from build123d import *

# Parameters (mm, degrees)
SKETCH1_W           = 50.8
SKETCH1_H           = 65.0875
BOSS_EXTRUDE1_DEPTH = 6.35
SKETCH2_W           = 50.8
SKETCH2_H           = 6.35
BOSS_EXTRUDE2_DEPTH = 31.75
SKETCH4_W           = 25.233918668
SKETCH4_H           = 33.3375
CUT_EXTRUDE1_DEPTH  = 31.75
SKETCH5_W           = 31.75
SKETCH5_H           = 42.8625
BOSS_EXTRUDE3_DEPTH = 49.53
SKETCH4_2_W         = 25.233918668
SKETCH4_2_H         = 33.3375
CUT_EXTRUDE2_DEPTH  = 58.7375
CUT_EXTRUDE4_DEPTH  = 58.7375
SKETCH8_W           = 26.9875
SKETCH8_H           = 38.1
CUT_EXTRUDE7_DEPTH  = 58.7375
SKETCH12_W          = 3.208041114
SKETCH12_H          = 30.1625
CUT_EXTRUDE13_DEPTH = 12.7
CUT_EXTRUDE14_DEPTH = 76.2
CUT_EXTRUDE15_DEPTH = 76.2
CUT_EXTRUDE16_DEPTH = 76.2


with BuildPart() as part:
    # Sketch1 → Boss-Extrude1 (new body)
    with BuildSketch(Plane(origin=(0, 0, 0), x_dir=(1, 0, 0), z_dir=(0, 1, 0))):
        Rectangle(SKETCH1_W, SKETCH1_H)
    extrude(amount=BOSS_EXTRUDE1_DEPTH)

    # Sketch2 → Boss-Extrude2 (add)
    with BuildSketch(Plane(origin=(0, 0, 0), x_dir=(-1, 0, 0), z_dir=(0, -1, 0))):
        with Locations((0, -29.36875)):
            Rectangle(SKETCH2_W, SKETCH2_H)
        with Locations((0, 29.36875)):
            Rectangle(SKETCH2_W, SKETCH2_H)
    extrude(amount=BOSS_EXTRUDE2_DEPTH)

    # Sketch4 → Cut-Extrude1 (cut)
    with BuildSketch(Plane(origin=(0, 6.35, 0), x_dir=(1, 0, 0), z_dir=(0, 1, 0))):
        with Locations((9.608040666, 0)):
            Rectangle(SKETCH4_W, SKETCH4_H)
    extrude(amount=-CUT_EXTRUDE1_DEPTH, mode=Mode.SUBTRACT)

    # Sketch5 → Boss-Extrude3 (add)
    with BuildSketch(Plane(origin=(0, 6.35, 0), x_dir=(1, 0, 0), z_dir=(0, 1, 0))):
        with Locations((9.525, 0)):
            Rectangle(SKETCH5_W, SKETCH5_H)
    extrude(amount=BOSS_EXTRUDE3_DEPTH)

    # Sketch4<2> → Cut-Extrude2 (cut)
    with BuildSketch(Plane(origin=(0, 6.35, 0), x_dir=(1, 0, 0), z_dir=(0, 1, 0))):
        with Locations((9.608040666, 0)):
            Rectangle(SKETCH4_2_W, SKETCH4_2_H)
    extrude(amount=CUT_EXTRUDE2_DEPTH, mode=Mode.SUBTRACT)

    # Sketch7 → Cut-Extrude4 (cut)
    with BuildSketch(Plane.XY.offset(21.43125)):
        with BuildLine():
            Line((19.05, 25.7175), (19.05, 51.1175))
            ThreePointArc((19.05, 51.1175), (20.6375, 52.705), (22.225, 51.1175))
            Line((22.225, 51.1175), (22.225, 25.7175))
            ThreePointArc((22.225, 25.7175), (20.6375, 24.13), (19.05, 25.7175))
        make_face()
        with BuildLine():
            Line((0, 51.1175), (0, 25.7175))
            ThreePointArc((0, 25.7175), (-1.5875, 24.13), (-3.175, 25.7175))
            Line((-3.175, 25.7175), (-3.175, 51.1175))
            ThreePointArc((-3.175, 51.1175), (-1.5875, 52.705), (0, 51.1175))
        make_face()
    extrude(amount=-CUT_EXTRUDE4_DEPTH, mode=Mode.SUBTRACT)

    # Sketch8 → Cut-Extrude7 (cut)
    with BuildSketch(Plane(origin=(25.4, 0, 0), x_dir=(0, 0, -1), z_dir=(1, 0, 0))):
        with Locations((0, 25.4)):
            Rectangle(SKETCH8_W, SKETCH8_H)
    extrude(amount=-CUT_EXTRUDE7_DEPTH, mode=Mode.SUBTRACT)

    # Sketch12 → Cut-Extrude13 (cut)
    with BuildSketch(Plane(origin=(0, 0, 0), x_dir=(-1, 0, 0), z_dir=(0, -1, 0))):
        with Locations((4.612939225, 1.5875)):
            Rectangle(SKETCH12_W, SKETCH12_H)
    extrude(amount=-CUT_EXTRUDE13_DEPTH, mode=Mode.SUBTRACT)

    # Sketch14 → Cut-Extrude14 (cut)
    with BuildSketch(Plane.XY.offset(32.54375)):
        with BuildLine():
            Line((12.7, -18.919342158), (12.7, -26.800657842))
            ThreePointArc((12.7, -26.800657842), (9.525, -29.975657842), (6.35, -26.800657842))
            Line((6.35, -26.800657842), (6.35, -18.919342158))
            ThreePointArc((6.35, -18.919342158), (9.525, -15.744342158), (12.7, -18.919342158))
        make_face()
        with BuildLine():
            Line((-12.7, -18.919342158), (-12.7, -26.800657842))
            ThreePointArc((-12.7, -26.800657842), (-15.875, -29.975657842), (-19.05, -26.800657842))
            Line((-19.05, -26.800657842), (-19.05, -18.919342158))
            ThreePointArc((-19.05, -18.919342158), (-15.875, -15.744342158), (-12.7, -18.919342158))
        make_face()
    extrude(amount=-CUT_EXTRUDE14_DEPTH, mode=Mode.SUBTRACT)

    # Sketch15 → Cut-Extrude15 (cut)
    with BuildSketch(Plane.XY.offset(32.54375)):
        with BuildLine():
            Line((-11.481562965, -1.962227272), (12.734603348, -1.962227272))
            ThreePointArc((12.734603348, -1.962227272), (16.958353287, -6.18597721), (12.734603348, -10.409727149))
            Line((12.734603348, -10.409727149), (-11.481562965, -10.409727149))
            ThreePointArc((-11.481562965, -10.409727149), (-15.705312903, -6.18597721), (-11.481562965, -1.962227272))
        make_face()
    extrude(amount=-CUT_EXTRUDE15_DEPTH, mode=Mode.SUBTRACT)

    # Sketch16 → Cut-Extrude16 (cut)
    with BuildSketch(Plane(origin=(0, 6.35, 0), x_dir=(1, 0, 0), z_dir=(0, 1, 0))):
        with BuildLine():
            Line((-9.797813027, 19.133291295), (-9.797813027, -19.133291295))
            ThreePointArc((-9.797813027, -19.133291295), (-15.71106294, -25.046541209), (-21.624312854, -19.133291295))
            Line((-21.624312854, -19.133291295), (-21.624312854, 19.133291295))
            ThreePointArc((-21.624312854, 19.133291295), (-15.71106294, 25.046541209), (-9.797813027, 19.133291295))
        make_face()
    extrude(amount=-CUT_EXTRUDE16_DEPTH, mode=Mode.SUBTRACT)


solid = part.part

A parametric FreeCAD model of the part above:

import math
import FreeCAD as App
import Part
import Sketcher
from FreeCAD import Vector
Q = App.Units.Quantity


def add_polygon(sketch, points):
    """Adds a closed chain of lines whose ends are joined by coincident constraints."""
    first, n = sketch.GeometryCount, len(points)
    for a, b in zip(points, points[1:] + points[:1]):
        sketch.addGeometry(Part.LineSegment(App.Vector(*a, 0), App.Vector(*b, 0)), False)
    for i in range(n):
        sketch.addConstraint(Sketcher.Constraint("Coincident", first + i, 2, first + (i + 1) % n, 1))

doc = App.newDocument("Part")
params = doc.addObject("Spreadsheet::Sheet", "Params")
for row, (alias, value) in enumerate([
    ("sketch1_width", "2 in"),
    ("sketch1_height", "2.5625 in"),
    ("pad1_length", "0.25 in"),
    ("sketch2_width", "2 in"),
    ("sketch2_height", "0.25 in"),
    ("pad2_length", "1.25 in"),
    ("sketch3_height", "1.3125 in"),
    ("pocket1_length", "1.25 in"),
    ("sketch4_width", "1.25 in"),
    ("sketch4_height", "1.6875 in"),
    ("pad3_length", "1.95 in"),
    ("sketch5_height", "1.3125 in"),
    ("pocket2_length", "2.3125 in"),
    ("sketch6_height", "1 in"),
    ("sketch6_radius", "0.0625 in"),
    ("pocket3_length", "2.3125 in"),
    ("sketch7_width", "1.5 in"),
    ("sketch7_height", "1.0625 in"),
    ("pocket4_length", "2.3125 in"),
    ("sketch8_height", "1.1875 in"),
    ("pocket5_length", "0.5 in"),
    ("sketch9_radius", "0.125 in"),
    ("pocket6_length", "3 in"),
    ("pocket7_length", "3 in"),
    ("pocket8_length", "3 in"),
], start=1):
    params.set(f"A{row}", alias)
    params.set(f"B{row}", "=" + value)
    params.setAlias(f"B{row}", alias)

body = doc.addObject("PartDesign::Body", "Body")

sketch1 = body.newObject("Sketcher::SketchObject", "Sketch")
sketch1.AttachmentSupport = (doc.getObject("XZ_Plane"), [""])
sketch1.MapMode = "FlatFace"
add_polygon(sketch1, [(-25, -33), (-25, 33), (25, 33), (25, -33)])
sketch1.addConstraint([
    Sketcher.Constraint("Vertical", 0),
    Sketcher.Constraint("Horizontal", 1),
    Sketcher.Constraint("Vertical", 2),
    Sketcher.Constraint("Horizontal", 3),
    Sketcher.Constraint("Symmetric", 0, 2, 2, 2, -1, 1),
    Sketcher.Constraint("DistanceX", 1, 1, 1, 2, Q("2 in")),
    Sketcher.Constraint("DistanceY", 0, 1, 0, 2, Q("2.5625 in")),
])
sketch1.setExpression("Constraints[9]", "Params.sketch1_width")
sketch1.setExpression("Constraints[10]", "Params.sketch1_height")
pad1 = body.newObject("PartDesign::Pad", "Pad")
pad1.Profile = sketch1
pad1.setExpression("Length", "Params.pad1_length")
pad1.Reversed = True

sketch2 = body.newObject("Sketcher::SketchObject", "Sketch001")
sketch2.AttachmentSupport = (doc.getObject("XZ_Plane"), [""])
sketch2.MapMode = "FlatFace"
add_polygon(sketch2, [(25, 26), (25, 33), (-25, 33), (-25, 26)])
add_polygon(sketch2, [(25, -33), (25, -26), (-25, -26), (-25, -33)])
sketch2.addConstraint([
    Sketcher.Constraint("Vertical", 0),
    Sketcher.Constraint("Horizontal", 1),
    Sketcher.Constraint("Vertical", 2),
    Sketcher.Constraint("Horizontal", 3),
    Sketcher.Constraint("Vertical", 4),
    Sketcher.Constraint("Horizontal", 5),
    Sketcher.Constraint("Vertical", 6),
    Sketcher.Constraint("Horizontal", 7),
    Sketcher.Constraint("Symmetric", 2, 2, 4, 2, -1, 1),
    Sketcher.Constraint("Symmetric", 0, 2, 6, 2, -1, 1),
    Sketcher.Constraint("Vertical", 3, 2, 4, 2),
    Sketcher.Constraint("DistanceX", 1, 2, 1, 1, Q("2 in")),
    Sketcher.Constraint("DistanceY", 0, 1, 0, 2, Q("0.25 in")),
    Sketcher.Constraint("DistanceY", -1, 1, 0, 2, Q("1.28125 in")),
])
sketch2.setExpression("Constraints[19]", "Params.sketch2_width")
sketch2.setExpression("Constraints[20]", "Params.sketch2_height")
pad2 = body.newObject("PartDesign::Pad", "Pad001")
pad2.Profile = sketch2
pad2.setExpression("Length", "Params.pad2_length")

sketch3 = body.newObject("Sketcher::SketchObject", "Sketch002")
sketch3.AttachmentSupport = (doc.getObject("XZ_Plane"), [""])
sketch3.MapMode = "FlatFace"
sketch3.AttachmentOffset = App.Placement(Vector(0, 0, -0.25 * 25.4), App.Rotation())
add_polygon(sketch3, [(-3, -17), (-3, 17), (22, 17), (22, -17)])
sketch3.addConstraint([
    Sketcher.Constraint("Vertical", 0),
    Sketcher.Constraint("Horizontal", 1),
    Sketcher.Constraint("Vertical", 2),
    Sketcher.Constraint("Horizontal", 3),
    Sketcher.Constraint("DistanceY", 0, 1, 0, 2, Q("1.3125 in")),
    Sketcher.Constraint("DistanceY", -1, 1, 0, 2, Q("0.65625 in")),
    Sketcher.Constraint("DistanceX", -1, 1, 1, 2, Q("0.875 in")),
    Sketcher.Constraint("DistanceX", 1, 1, 1, 2, 25.233919),
])
sketch3.setExpression("Constraints[8]", "Params.sketch3_height")
pocket1 = body.newObject("PartDesign::Pocket", "Pocket")
pocket1.Profile = sketch3
pocket1.setExpression("Length", "Params.pocket1_length")
pocket1.Reversed = True

sketch4 = body.newObject("Sketcher::SketchObject", "Sketch003")
sketch4.AttachmentSupport = (doc.getObject("XZ_Plane"), [""])
sketch4.MapMode = "FlatFace"
sketch4.AttachmentOffset = App.Placement(Vector(0, 0, -0.25 * 25.4), App.Rotation())
add_polygon(sketch4, [(-6, -21), (-6, 21), (25, 21), (25, -21)])
sketch4.addConstraint([
    Sketcher.Constraint("Vertical", 0),
    Sketcher.Constraint("Horizontal", 1),
    Sketcher.Constraint("Vertical", 2),
    Sketcher.Constraint("Horizontal", 3),
    Sketcher.Constraint("DistanceX", -1, 1, 1, 2, Q("1 in")),
    Sketcher.Constraint("DistanceX", 1, 1, 1, 2, Q("1.25 in")),
    Sketcher.Constraint("DistanceY", 0, 1, 0, 2, Q("1.6875 in")),
    Sketcher.Constraint("DistanceY", -1, 1, 0, 2, Q("0.84375 in")),
])
sketch4.setExpression("Constraints[9]", "Params.sketch4_width")
sketch4.setExpression("Constraints[10]", "Params.sketch4_height")
pad3 = body.newObject("PartDesign::Pad", "Pad002")
pad3.Profile = sketch4
pad3.setExpression("Length", "Params.pad3_length")
pad3.Reversed = True

sketch5 = body.newObject("Sketcher::SketchObject", "Sketch004")
sketch5.AttachmentSupport = (doc.getObject("XZ_Plane"), [""])
sketch5.MapMode = "FlatFace"
sketch5.AttachmentOffset = App.Placement(Vector(0, 0, -0.25 * 25.4), App.Rotation())
add_polygon(sketch5, [(-3, -17), (-3, 17), (22, 17), (22, -17)])
sketch5.addConstraint([
    Sketcher.Constraint("Vertical", 0),
    Sketcher.Constraint("Horizontal", 1),
    Sketcher.Constraint("Vertical", 2),
    Sketcher.Constraint("Horizontal", 3),
    Sketcher.Constraint("DistanceY", 0, 1, 0, 2, Q("1.3125 in")),
    Sketcher.Constraint("DistanceY", -1, 1, 0, 2, Q("0.65625 in")),
    Sketcher.Constraint("DistanceX", -1, 1, 1, 2, Q("0.875 in")),
    Sketcher.Constraint("DistanceX", 1, 1, 1, 2, 25.233919),
])
sketch5.setExpression("Constraints[8]", "Params.sketch5_height")
pocket2 = body.newObject("PartDesign::Pocket", "Pocket001")
pocket2.Profile = sketch5
pocket2.setExpression("Length", "Params.pocket2_length")

sketch6 = body.newObject("Sketcher::SketchObject", "Sketch005")
sketch6.AttachmentSupport = (doc.getObject("XY_Plane"), [""])
sketch6.MapMode = "FlatFace"
sketch6.AttachmentOffset = App.Placement(Vector(0, 0, 0.84375 * 25.4), App.Rotation())
sketch6.addGeometry([
    Part.LineSegment(Vector(19.1, 51.1, 0), Vector(19.1, 25.7, 0)),
    Part.ArcOfCircle(Part.Circle(Vector(20.6, 25.7, 0), Vector(0, 0, 1), 1.6), math.radians(180), math.radians(360)),
    Part.LineSegment(Vector(22.2, 25.7, 0), Vector(22.2, 51.1, 0)),
    Part.ArcOfCircle(Part.Circle(Vector(20.6, 51.1, 0), Vector(0, 0, 1), 1.6), math.radians(0), math.radians(180)),
    Part.LineSegment(Vector(0, 25.7, 0), Vector(0, 51.1, 0)),
    Part.ArcOfCircle(Part.Circle(Vector(-1.6, 51.1, 0), Vector(0, 0, 1), 1.6), math.radians(0), math.radians(180)),
    Part.LineSegment(Vector(-3.2, 51.1, 0), Vector(-3.2, 25.7, 0)),
    Part.ArcOfCircle(Part.Circle(Vector(-1.6, 25.7, 0), Vector(0, 0, 1), 1.6), math.radians(180), math.radians(360)),
], False)
sketch6.addConstraint([
    Sketcher.Constraint("Tangent", 0, 2, 1, 1),
    Sketcher.Constraint("Tangent", 1, 2, 2, 1),
    Sketcher.Constraint("Tangent", 2, 2, 3, 1),
    Sketcher.Constraint("Tangent", 3, 2, 0, 1),
    Sketcher.Constraint("Tangent", 4, 2, 5, 1),
    Sketcher.Constraint("Tangent", 5, 2, 6, 1),
    Sketcher.Constraint("Tangent", 6, 2, 7, 1),
    Sketcher.Constraint("Tangent", 7, 2, 4, 1),
    Sketcher.Constraint("Vertical", 0),
    Sketcher.Constraint("Vertical", 2),
    Sketcher.Constraint("Vertical", 4),
    Sketcher.Constraint("Vertical", 6),
    Sketcher.Constraint("Equal", 3, 5),
    Sketcher.Constraint("PointOnObject", 4, 2, -2),
    Sketcher.Constraint("Horizontal", 3, 3, 5, 3),
    Sketcher.Constraint("Horizontal", 1, 3, 7, 3),
    Sketcher.Constraint("DistanceY", 0, 2, 0, 1, Q("1 in")),
    Sketcher.Constraint("Radius", 1, Q("0.0625 in")),
    Sketcher.Constraint("DistanceX", 5, 2, 2, 2, Q("1 in")),
    Sketcher.Constraint("DistanceY", -1, 1, 1, 3, Q("1.0125 in")),
])
sketch6.setExpression("Constraints[16]", "Params.sketch6_height")
sketch6.setExpression("Constraints[17]", "Params.sketch6_radius")
pocket3 = body.newObject("PartDesign::Pocket", "Pocket002")
pocket3.Profile = sketch6
pocket3.setExpression("Length", "Params.pocket3_length")

sketch7 = body.newObject("Sketcher::SketchObject", "Sketch006")
sketch7.AttachmentSupport = (doc.getObject("YZ_Plane"), [""])
sketch7.MapMode = "FlatFace"
sketch7.AttachmentOffset = App.Placement(Vector(0, 0, 1 * 25.4), App.Rotation())
add_polygon(sketch7, [(44, 13), (6, 13), (6, -13), (44, -13)])
sketch7.addConstraint([
    Sketcher.Constraint("Horizontal", 0),
    Sketcher.Constraint("Vertical", 1),
    Sketcher.Constraint("Horizontal", 2),
    Sketcher.Constraint("Vertical", 3),
    Sketcher.Constraint("DistanceX", 0, 2, 0, 1, Q("1.5 in")),
    Sketcher.Constraint("DistanceY", 1, 2, 1, 1, Q("1.0625 in")),
    Sketcher.Constraint("DistanceX", -1, 1, 0, 2, Q("0.25 in")),
    Sketcher.Constraint("DistanceY", -1, 1, 0, 2, Q("0.53125 in")),
])
sketch7.setExpression("Constraints[8]", "Params.sketch7_width")
sketch7.setExpression("Constraints[9]", "Params.sketch7_height")
pocket4 = body.newObject("PartDesign::Pocket", "Pocket003")
pocket4.Profile = sketch7
pocket4.setExpression("Length", "Params.pocket4_length")

sketch8 = body.newObject("Sketcher::SketchObject", "Sketch007")
sketch8.AttachmentSupport = (doc.getObject("XZ_Plane"), [""])
sketch8.MapMode = "FlatFace"
add_polygon(sketch8, [(-3, -16.7), (-3, 13.5), (-6.2, 13.5), (-6.2, -16.7)])
sketch8.addConstraint([
    Sketcher.Constraint("Vertical", 0),
    Sketcher.Constraint("Horizontal", 1),
    Sketcher.Constraint("Vertical", 2),
    Sketcher.Constraint("Horizontal", 3),
    Sketcher.Constraint("DistanceY", 0, 1, 0, 2, Q("1.1875 in")),
    Sketcher.Constraint("DistanceY", -1, 1, 0, 2, Q("0.53125 in")),
    Sketcher.Constraint("DistanceX", 1, 2, 1, 1, 3.208041),
    Sketcher.Constraint("DistanceX", 0, 2, -1, 1, 3.008919),
])
sketch8.setExpression("Constraints[8]", "Params.sketch8_height")
pocket5 = body.newObject("PartDesign::Pocket", "Pocket004")
pocket5.Profile = sketch8
pocket5.setExpression("Length", "Params.pocket5_length")

sketch9 = body.newObject("Sketcher::SketchObject", "Sketch008")
sketch9.AttachmentSupport = (doc.getObject("XY_Plane"), [""])
sketch9.MapMode = "FlatFace"
sketch9.AttachmentOffset = App.Placement(Vector(0, 0, 1.28125 * 25.4), App.Rotation())
sketch9.addGeometry([
    Part.LineSegment(Vector(12.7, -26.8, 0), Vector(12.7, -18.9, 0)),
    Part.ArcOfCircle(Part.Circle(Vector(9.5, -18.9, 0), Vector(0, 0, 1), 3.2), math.radians(0), math.radians(180)),
    Part.LineSegment(Vector(6.3, -18.9, 0), Vector(6.3, -26.8, 0)),
    Part.ArcOfCircle(Part.Circle(Vector(9.5, -26.8, 0), Vector(0, 0, 1), 3.2), math.radians(180), math.radians(360)),
    Part.LineSegment(Vector(-12.7, -26.8, 0), Vector(-12.7, -18.9, 0)),
    Part.ArcOfCircle(Part.Circle(Vector(-15.9, -18.9, 0), Vector(0, 0, 1), 3.2), math.radians(0), math.radians(180)),
    Part.LineSegment(Vector(-19.1, -18.9, 0), Vector(-19.1, -26.8, 0)),
    Part.ArcOfCircle(Part.Circle(Vector(-15.9, -26.8, 0), Vector(0, 0, 1), 3.2), math.radians(180), math.radians(360)),
], False)
sketch9.addConstraint([
    Sketcher.Constraint("Tangent", 0, 2, 1, 1),
    Sketcher.Constraint("Tangent", 1, 2, 2, 1),
    Sketcher.Constraint("Tangent", 2, 2, 3, 1),
    Sketcher.Constraint("Tangent", 3, 2, 0, 1),
    Sketcher.Constraint("Tangent", 4, 2, 5, 1),
    Sketcher.Constraint("Tangent", 5, 2, 6, 1),
    Sketcher.Constraint("Tangent", 6, 2, 7, 1),
    Sketcher.Constraint("Tangent", 7, 2, 4, 1),
    Sketcher.Constraint("Vertical", 0),
    Sketcher.Constraint("Vertical", 2),
    Sketcher.Constraint("Vertical", 4),
    Sketcher.Constraint("Vertical", 6),
    Sketcher.Constraint("Equal", 3, 5),
    Sketcher.Constraint("Symmetric", 0, 2, 4, 2, -2),
    Sketcher.Constraint("Horizontal", 3, 3, 7, 3),
    Sketcher.Constraint("Radius", 1, Q("0.125 in")),
    Sketcher.Constraint("DistanceX", 5, 3, 1, 3, Q("1 in")),
    Sketcher.Constraint("DistanceY", 0, 1, 0, 2, 7.881316),
    Sketcher.Constraint("DistanceY", 1, 3, -1, 1, 18.919342),
])
sketch9.setExpression("Constraints[15]", "Params.sketch9_radius")
pocket6 = body.newObject("PartDesign::Pocket", "Pocket005")
pocket6.Profile = sketch9
pocket6.setExpression("Length", "Params.pocket6_length")

sketch10 = body.newObject("Sketcher::SketchObject", "Sketch009")
sketch10.AttachmentSupport = (doc.getObject("XY_Plane"), [""])
sketch10.MapMode = "FlatFace"
sketch10.AttachmentOffset = App.Placement(Vector(0, 0, 1.28125 * 25.4), App.Rotation())
sketch10.addGeometry([
    Part.LineSegment(Vector(12.7, -2, 0), Vector(-11.5, -2, 0)),
    Part.ArcOfCircle(Part.Circle(Vector(-11.5, -6.2, 0), Vector(0, 0, 1), 4.2), math.radians(90), math.radians(270)),
    Part.LineSegment(Vector(-11.5, -10.4, 0), Vector(12.7, -10.4, 0)),
    Part.ArcOfCircle(Part.Circle(Vector(12.7, -6.2, 0), Vector(0, 0, 1), 4.2), math.radians(-90), math.radians(90)),
], False)
sketch10.addConstraint([
    Sketcher.Constraint("Tangent", 0, 2, 1, 1),
    Sketcher.Constraint("Tangent", 1, 2, 2, 1),
    Sketcher.Constraint("Tangent", 2, 2, 3, 1),
    Sketcher.Constraint("Tangent", 3, 2, 0, 1),
    Sketcher.Constraint("Horizontal", 0),
    Sketcher.Constraint("Horizontal", 2),
    Sketcher.Constraint("Radius", 1, 4.22375),
    Sketcher.Constraint("DistanceX", 0, 2, 0, 1, 24.216166),
    Sketcher.Constraint("DistanceX", 1, 3, -1, 1, 11.481563),
    Sketcher.Constraint("DistanceY", 1, 3, -1, 1, 6.185977),
])
pocket7 = body.newObject("PartDesign::Pocket", "Pocket006")
pocket7.Profile = sketch10
pocket7.setExpression("Length", "Params.pocket7_length")

sketch11 = body.newObject("Sketcher::SketchObject", "Sketch010")
sketch11.AttachmentSupport = (doc.getObject("XZ_Plane"), [""])
sketch11.MapMode = "FlatFace"
sketch11.AttachmentOffset = App.Placement(Vector(0, 0, -0.25 * 25.4), App.Rotation())
sketch11.addGeometry([
    Part.LineSegment(Vector(-10, 19, 0), Vector(-10, -19, 0)),
    Part.ArcOfCircle(Part.Circle(Vector(-16, -19, 0), Vector(0, 0, 1), 6), math.radians(180), math.radians(360)),
    Part.LineSegment(Vector(-22, -19, 0), Vector(-22, 19, 0)),
    Part.ArcOfCircle(Part.Circle(Vector(-16, 19, 0), Vector(0, 0, 1), 6), math.radians(0), math.radians(180)),
], False)
sketch11.addConstraint([
    Sketcher.Constraint("Tangent", 0, 2, 1, 2),
    Sketcher.Constraint("Tangent", 1, 1, 2, 1),
    Sketcher.Constraint("Tangent", 2, 2, 3, 2),
    Sketcher.Constraint("Tangent", 3, 1, 0, 1),
    Sketcher.Constraint("Vertical", 0),
    Sketcher.Constraint("Vertical", 2),
    Sketcher.Constraint("Radius", 1, 5.91325),
    Sketcher.Constraint("DistanceY", 0, 2, 0, 1, 38.266583),
    Sketcher.Constraint("DistanceY", 1, 3, -1, 1, 19.133291),
    Sketcher.Constraint("DistanceX", 1, 3, -1, 1, 15.711063),
])
pocket8 = body.newObject("PartDesign::Pocket", "Pocket007")
pocket8.Profile = sketch11
pocket8.setExpression("Length", "Params.pocket8_length")
pocket8.Reversed = True

doc.recompute()
